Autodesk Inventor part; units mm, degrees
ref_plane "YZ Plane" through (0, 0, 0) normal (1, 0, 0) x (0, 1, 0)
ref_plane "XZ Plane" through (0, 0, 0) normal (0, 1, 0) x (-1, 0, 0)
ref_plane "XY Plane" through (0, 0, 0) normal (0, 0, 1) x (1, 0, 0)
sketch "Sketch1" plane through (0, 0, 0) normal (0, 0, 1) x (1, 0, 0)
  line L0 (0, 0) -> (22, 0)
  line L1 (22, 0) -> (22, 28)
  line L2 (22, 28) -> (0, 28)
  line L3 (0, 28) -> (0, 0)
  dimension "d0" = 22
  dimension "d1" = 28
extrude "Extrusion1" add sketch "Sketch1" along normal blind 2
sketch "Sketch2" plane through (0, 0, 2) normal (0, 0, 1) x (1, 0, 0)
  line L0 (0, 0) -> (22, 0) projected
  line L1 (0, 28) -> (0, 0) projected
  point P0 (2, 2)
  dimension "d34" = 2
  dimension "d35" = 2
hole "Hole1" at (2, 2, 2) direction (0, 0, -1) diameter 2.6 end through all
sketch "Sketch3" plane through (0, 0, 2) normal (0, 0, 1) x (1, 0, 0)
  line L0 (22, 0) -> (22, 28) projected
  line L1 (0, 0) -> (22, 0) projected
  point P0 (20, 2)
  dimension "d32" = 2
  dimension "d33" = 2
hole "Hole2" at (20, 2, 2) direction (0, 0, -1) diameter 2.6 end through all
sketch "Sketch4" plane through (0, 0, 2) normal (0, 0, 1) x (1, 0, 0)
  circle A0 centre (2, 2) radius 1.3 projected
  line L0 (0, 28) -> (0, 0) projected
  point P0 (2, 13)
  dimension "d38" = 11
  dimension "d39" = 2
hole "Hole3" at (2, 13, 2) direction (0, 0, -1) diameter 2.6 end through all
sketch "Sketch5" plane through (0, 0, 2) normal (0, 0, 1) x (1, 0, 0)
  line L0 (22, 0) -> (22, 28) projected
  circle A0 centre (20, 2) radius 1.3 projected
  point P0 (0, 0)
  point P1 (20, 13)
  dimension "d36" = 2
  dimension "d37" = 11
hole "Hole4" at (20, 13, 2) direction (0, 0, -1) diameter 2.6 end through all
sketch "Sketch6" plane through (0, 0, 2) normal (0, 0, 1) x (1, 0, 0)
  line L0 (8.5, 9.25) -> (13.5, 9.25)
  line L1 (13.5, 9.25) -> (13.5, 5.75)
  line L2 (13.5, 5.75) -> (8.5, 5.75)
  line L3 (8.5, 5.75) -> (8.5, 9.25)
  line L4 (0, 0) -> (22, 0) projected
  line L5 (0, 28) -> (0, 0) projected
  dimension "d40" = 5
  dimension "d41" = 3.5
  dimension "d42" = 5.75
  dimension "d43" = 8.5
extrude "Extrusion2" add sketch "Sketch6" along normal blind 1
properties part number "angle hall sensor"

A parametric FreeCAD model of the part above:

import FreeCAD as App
import Part
import Sketcher
Q = App.Units.Quantity

doc = App.newDocument("Part")
body = doc.addObject("PartDesign::Body", "Body")

# Sketch on XY plane
sketch1 = body.newObject("Sketcher::SketchObject", "Sketch")
sketch1.AttachmentSupport = (doc.getObject("XY_Plane"), [""])
sketch1.MapMode = "FlatFace"
sketch1.addGeometry(Part.LineSegment(App.Vector(0, 28, 0), App.Vector(0, 0, 0)), False)
sketch1.addGeometry(Part.LineSegment(App.Vector(0, 0, 0), App.Vector(22, 0, 0)), False)
sketch1.addGeometry(Part.LineSegment(App.Vector(22, 0, 0), App.Vector(22, 28, 0)), False)
sketch1.addGeometry(Part.LineSegment(App.Vector(22, 28, 0), App.Vector(0, 28, 0)), False)
sketch1.addConstraint(Sketcher.Constraint("Coincident", 0, 2, 1, 1))
sketch1.addConstraint(Sketcher.Constraint("Coincident", 1, 2, 2, 1))
sketch1.addConstraint(Sketcher.Constraint("Coincident", 2, 2, 3, 1))
sketch1.addConstraint(Sketcher.Constraint("Coincident", 3, 2, 0, 1))
sketch1.addConstraint(Sketcher.Constraint("Vertical", 0))
sketch1.addConstraint(Sketcher.Constraint("Horizontal", 1))
sketch1.addConstraint(Sketcher.Constraint("Vertical", 2))
sketch1.addConstraint(Sketcher.Constraint("Horizontal", 3))
sketch1.addConstraint(Sketcher.Constraint("Coincident", 0, 2, -1, 1))
sketch1.addConstraint(Sketcher.Constraint("DistanceX", 1, 1, 1, 2, Q("22 mm")))
sketch1.addConstraint(Sketcher.Constraint("DistanceY", 0, 2, 0, 1, Q("28 mm")))
pad1 = body.newObject("PartDesign::Pad", "Pad")
pad1.Profile = sketch1
pad1.Length = 2

# Sketch on XY plane
sketch2 = body.newObject("Sketcher::SketchObject", "Sketch001")
sketch2.AttachmentSupport = (doc.getObject("XY_Plane"), [""])
sketch2.MapMode = "FlatFace"
sketch2.AttachmentOffset = App.Placement(App.Vector(0, 0, 2), App.Rotation())
sketch2.addGeometry(Part.Circle(App.Vector(2, 2, 0), App.Vector(0, 0, 1), 1.3), False)
sketch2.addConstraint(Sketcher.Constraint("Diameter", 0, Q("2.6 mm")))
sketch2.addConstraint(Sketcher.Constraint("DistanceX", -1, 1, 0, 3, Q("2 mm")))
sketch2.addConstraint(Sketcher.Constraint("DistanceY", -1, 1, 0, 3, Q("2 mm")))
doc.recompute()
hole = body.newObject("PartDesign::Hole", "Hole")
hole.Profile = sketch2
hole.ThreadType = "None"
hole.Diameter = 2.6
hole.DepthType = "ThroughAll"

# Sketch on XY plane
sketch3 = body.newObject("Sketcher::SketchObject", "Sketch002")
sketch3.AttachmentSupport = (doc.getObject("XY_Plane"), [""])
sketch3.MapMode = "FlatFace"
sketch3.AttachmentOffset = App.Placement(App.Vector(0, 0, 2), App.Rotation())
sketch3.addGeometry(Part.Circle(App.Vector(20, 2, 0), App.Vector(0, 0, 1), 1.3), False)
sketch3.addConstraint(Sketcher.Constraint("Diameter", 0, Q("2.6 mm")))
sketch3.addConstraint(Sketcher.Constraint("DistanceX", -1, 1, 0, 3, Q("20 mm")))
sketch3.addConstraint(Sketcher.Constraint("DistanceY", -1, 1, 0, 3, Q("2 mm")))
doc.recompute()
hole2 = body.newObject("PartDesign::Hole", "Hole001")
hole2.Profile = sketch3
hole2.ThreadType = "None"
hole2.Diameter = 2.6
hole2.DepthType = "ThroughAll"

# Sketch on XY plane
sketch4 = body.newObject("Sketcher::SketchObject", "Sketch003")
sketch4.AttachmentSupport = (doc.getObject("XY_Plane"), [""])
sketch4.MapMode = "FlatFace"
sketch4.AttachmentOffset = App.Placement(App.Vector(0, 0, 2), App.Rotation())
sketch4.addGeometry(Part.Circle(App.Vector(2, 13, 0), App.Vector(0, 0, 1), 1.3), False)
sketch4.addConstraint(Sketcher.Constraint("Diameter", 0, Q("2.6 mm")))
sketch4.addConstraint(Sketcher.Constraint("DistanceX", -1, 1, 0, 3, Q("2 mm")))
sketch4.addConstraint(Sketcher.Constraint("DistanceY", -1, 1, 0, 3, Q("13 mm")))
doc.recompute()
hole3 = body.newObject("PartDesign::Hole", "Hole002")
hole3.Profile = sketch4
hole3.ThreadType = "None"
hole3.Diameter = 2.6
hole3.DepthType = "ThroughAll"

# Sketch on XY plane
sketch5 = body.newObject("Sketcher::SketchObject", "Sketch004")
sketch5.AttachmentSupport = (doc.getObject("XY_Plane"), [""])
sketch5.MapMode = "FlatFace"
sketch5.AttachmentOffset = App.Placement(App.Vector(0, 0, 2), App.Rotation())
sketch5.addGeometry(Part.Circle(App.Vector(20, 13, 0), App.Vector(0, 0, 1), 1.3), False)
sketch5.addConstraint(Sketcher.Constraint("Diameter", 0, Q("2.6 mm")))
sketch5.addConstraint(Sketcher.Constraint("DistanceX", -1, 1, 0, 3, Q("20 mm")))
sketch5.addConstraint(Sketcher.Constraint("DistanceY", -1, 1, 0, 3, Q("13 mm")))
doc.recompute()
hole4 = body.newObject("PartDesign::Hole", "Hole003")
hole4.Profile = sketch5
hole4.ThreadType = "None"
hole4.Diameter = 2.6
hole4.DepthType = "ThroughAll"

# Sketch on XY plane
sketch6 = body.newObject("Sketcher::SketchObject", "Sketch005")
sketch6.AttachmentSupport = (doc.getObject("XY_Plane"), [""])
sketch6.MapMode = "FlatFace"
sketch6.AttachmentOffset = App.Placement(App.Vector(0, 0, 2), App.Rotation())
sketch6.addGeometry(Part.LineSegment(App.Vector(13.5, 9.2, 0), App.Vector(8.5, 9.2, 0)), False)
sketch6.addGeometry(Part.LineSegment(App.Vector(8.5, 9.2, 0), App.Vector(8.5, 5.8, 0)), False)
sketch6.addGeometry(Part.LineSegment(App.Vector(8.5, 5.8, 0), App.Vector(13.5, 5.8, 0)), False)
sketch6.addGeometry(Part.LineSegment(App.Vector(13.5, 5.8, 0), App.Vector(13.5, 9.2, 0)), False)
sketch6.addConstraint(Sketcher.Constraint("Coincident", 0, 2, 1, 1))
sketch6.addConstraint(Sketcher.Constraint("Coincident", 1, 2, 2, 1))
sketch6.addConstraint(Sketcher.Constraint("Coincident", 2, 2, 3, 1))
sketch6.addConstraint(Sketcher.Constraint("Coincident", 3, 2, 0, 1))
sketch6.addConstraint(Sketcher.Constraint("Horizontal", 0))
sketch6.addConstraint(Sketcher.Constraint("Vertical", 1))
sketch6.addConstraint(Sketcher.Constraint("Horizontal", 2))
sketch6.addConstraint(Sketcher.Constraint("Vertical", 3))
sketch6.addConstraint(Sketcher.Constraint("DistanceX", 0, 2, 0, 1, Q("5 mm")))
sketch6.addConstraint(Sketcher.Constraint("DistanceY", 1, 2, 1, 1, Q("3.5 mm")))
sketch6.addConstraint(Sketcher.Constraint("DistanceX", -1, 1, 0, 2, Q("8.5 mm")))
sketch6.addConstraint(Sketcher.Constraint("DistanceY", -1, 1, 1, 2, Q("5.75 mm")))
pad2 = body.newObject("PartDesign::Pad", "Pad001")
pad2.Profile = sketch6
pad2.Length = 1

doc.recompute()
